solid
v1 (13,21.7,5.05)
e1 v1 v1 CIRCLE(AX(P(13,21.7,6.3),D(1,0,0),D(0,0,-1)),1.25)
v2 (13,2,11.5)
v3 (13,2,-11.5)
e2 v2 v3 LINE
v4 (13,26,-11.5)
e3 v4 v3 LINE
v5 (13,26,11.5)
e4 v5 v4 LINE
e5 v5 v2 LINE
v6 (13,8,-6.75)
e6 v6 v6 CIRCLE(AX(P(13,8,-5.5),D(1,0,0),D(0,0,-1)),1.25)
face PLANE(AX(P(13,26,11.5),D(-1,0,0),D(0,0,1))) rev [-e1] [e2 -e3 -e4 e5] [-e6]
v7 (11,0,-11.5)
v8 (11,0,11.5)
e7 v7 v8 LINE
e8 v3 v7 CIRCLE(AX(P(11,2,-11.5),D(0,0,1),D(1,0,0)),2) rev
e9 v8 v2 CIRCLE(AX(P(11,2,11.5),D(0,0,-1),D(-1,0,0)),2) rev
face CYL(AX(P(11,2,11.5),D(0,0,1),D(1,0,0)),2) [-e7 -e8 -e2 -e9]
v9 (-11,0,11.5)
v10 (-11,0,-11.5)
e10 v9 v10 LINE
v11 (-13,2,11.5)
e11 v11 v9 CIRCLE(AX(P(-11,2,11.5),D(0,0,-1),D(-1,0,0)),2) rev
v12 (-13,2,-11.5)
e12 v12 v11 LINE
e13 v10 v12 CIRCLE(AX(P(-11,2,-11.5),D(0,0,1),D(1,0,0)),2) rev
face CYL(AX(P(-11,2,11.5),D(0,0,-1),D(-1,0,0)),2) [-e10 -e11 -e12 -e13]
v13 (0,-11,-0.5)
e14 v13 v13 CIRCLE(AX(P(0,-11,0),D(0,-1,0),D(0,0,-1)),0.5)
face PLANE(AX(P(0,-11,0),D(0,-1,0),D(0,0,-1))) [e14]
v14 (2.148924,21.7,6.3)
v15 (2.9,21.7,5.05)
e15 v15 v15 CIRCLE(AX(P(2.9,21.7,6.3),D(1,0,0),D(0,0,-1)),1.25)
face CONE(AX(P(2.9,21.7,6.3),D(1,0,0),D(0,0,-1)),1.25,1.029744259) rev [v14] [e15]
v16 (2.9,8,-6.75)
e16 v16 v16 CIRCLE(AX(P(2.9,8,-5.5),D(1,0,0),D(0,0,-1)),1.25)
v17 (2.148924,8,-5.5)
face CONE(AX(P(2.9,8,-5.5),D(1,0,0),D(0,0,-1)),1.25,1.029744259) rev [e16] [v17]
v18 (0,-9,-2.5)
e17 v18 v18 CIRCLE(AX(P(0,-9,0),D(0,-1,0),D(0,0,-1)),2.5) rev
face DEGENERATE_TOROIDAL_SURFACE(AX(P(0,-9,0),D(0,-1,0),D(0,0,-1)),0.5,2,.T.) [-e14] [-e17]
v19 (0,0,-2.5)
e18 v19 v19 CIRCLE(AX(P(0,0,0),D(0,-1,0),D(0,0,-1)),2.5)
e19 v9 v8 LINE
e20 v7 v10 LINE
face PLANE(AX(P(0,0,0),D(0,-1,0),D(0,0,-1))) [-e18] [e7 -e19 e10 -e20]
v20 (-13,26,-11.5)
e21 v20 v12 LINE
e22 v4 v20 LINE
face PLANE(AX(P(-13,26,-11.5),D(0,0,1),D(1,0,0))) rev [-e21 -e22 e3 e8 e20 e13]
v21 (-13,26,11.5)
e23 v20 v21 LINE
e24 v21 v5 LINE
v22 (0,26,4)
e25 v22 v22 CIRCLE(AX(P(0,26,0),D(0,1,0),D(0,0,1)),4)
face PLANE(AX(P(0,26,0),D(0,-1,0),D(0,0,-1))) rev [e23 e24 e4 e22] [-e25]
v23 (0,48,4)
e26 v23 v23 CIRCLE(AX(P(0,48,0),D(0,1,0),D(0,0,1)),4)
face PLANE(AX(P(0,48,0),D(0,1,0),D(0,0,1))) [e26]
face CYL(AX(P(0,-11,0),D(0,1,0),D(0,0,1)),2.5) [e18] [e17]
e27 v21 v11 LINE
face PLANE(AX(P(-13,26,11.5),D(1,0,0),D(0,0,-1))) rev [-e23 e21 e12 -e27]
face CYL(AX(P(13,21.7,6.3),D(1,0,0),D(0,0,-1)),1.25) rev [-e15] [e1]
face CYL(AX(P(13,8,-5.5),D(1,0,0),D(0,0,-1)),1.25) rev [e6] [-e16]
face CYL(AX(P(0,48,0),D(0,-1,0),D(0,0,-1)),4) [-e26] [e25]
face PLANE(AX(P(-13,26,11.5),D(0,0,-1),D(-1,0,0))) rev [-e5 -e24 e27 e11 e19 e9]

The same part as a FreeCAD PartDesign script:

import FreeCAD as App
import Part
import Sketcher
Q = App.Units.Quantity


def edges_at(feature, points):
    """Names of the edges that pass closest to the given points."""
    edges = feature.Shape.Edges
    near = lambda p: min(range(len(edges)), key=lambda i: edges[i].distToShape(Part.Vertex(*p))[0])
    return sorted({f"Edge{near(p) + 1}" for p in points})

doc = App.newDocument("Part")
params = doc.addObject("Spreadsheet::Sheet", "Params")
for row, (alias, value) in enumerate([
    ("sketch1_width", "26 mm"),
    ("sketch1_height", "23 mm"),
    ("pad1_length", "26 mm"),
    ("sketch2_diameter", "2.5 mm"),
    ("hole_diameter", "2.5 mm"),
    ("hole_depth", "10.1 mm"),
    ("fillet_radius", "2 mm"),
    ("sketch3_diameter", "8 mm"),
    ("pad2_length", "22 mm"),
    ("sketch4_diameter", "5 mm"),
    ("pad3_length", "11 mm"),
    ("fillet2_radius", "2 mm"),
], start=1):
    params.set(f"A{row}", alias)
    params.set(f"B{row}", "=" + value)
    params.setAlias(f"B{row}", alias)

body = doc.addObject("PartDesign::Body", "Body")

# Sketch on XZ plane
sketch1 = body.newObject("Sketcher::SketchObject", "Sketch")
sketch1.AttachmentSupport = (doc.getObject("XZ_Plane"), [""])
sketch1.MapMode = "FlatFace"
sketch1.addGeometry([
    Part.LineSegment(App.Vector(-13, -12, 0), App.Vector(-13, 12, 0)),
    Part.LineSegment(App.Vector(-13, 12, 0), App.Vector(13, 12, 0)),
    Part.LineSegment(App.Vector(13, 12, 0), App.Vector(13, -12, 0)),
    Part.LineSegment(App.Vector(13, -12, 0), App.Vector(-13, -12, 0)),
], False)
sketch1.addConstraint([
    Sketcher.Constraint("Coincident", 0, 2, 1, 1),
    Sketcher.Constraint("Coincident", 1, 2, 2, 1),
    Sketcher.Constraint("Coincident", 2, 2, 3, 1),
    Sketcher.Constraint("Coincident", 3, 2, 0, 1),
    Sketcher.Constraint("Vertical", 0),
    Sketcher.Constraint("Horizontal", 1),
    Sketcher.Constraint("Vertical", 2),
    Sketcher.Constraint("Horizontal", 3),
    Sketcher.Constraint("Symmetric", 0, 2, 2, 2, -1, 1),
    Sketcher.Constraint("DistanceX", 1, 1, 1, 2, Q("26 mm")),
    Sketcher.Constraint("DistanceY", 0, 1, 0, 2, Q("23 mm")),
])
sketch1.setExpression("Constraints[9]", "Params.sketch1_width")
sketch1.setExpression("Constraints[10]", "Params.sketch1_height")
pad1 = body.newObject("PartDesign::Pad", "Pad")
pad1.Profile = sketch1
pad1.setExpression("Length", "Params.pad1_length")
pad1.Reversed = True

# Sketch on YZ plane
sketch2 = body.newObject("Sketcher::SketchObject", "Sketch001")
sketch2.AttachmentSupport = (doc.getObject("YZ_Plane"), [""])
sketch2.MapMode = "FlatFace"
sketch2.AttachmentOffset = App.Placement(App.Vector(0, 0, 13), App.Rotation())
sketch2.addGeometry([
    Part.Circle(App.Vector(21.7, 6.3, 0), App.Vector(0, 0, 1), 1.2),
    Part.Circle(App.Vector(8, -5.5, 0), App.Vector(0, 0, 1), 1.2),
], False)
sketch2.addConstraint([
    Sketcher.Constraint("Equal", 0, 1),
    Sketcher.Constraint("Diameter", 0, Q("2.5 mm")),
    Sketcher.Constraint("DistanceX", -1, 1, 1, 3, Q("8 mm")),
    Sketcher.Constraint("DistanceX", -1, 1, 0, 3, Q("21.7 mm")),
    Sketcher.Constraint("DistanceY", -1, 1, 0, 3, Q("6.3 mm")),
    Sketcher.Constraint("DistanceY", 1, 3, -1, 1, Q("5.5 mm")),
])
sketch2.setExpression("Constraints[1]", "Params.sketch2_diameter")
doc.recompute()
hole = body.newObject("PartDesign::Hole", "Hole")
hole.Profile = sketch2
hole.ThreadType = "None"
hole.setExpression("Diameter", "Params.hole_diameter")
hole.DepthType = "Dimension"
hole.setExpression("Depth", "Params.hole_depth")
hole.DrillPoint = "Angled"
hole.DrillPointAngle = 118
doc.recompute()

fillet = body.newObject("PartDesign::Fillet", "Fillet")
fillet.Base = (hole, edges_at(hole, [(-13, 0, 0), (13, 0, 0)]))
fillet.setExpression("Radius", "Params.fillet_radius")

# Sketch on XZ plane
sketch3 = body.newObject("Sketcher::SketchObject", "Sketch002")
sketch3.AttachmentSupport = (doc.getObject("XZ_Plane"), [""])
sketch3.MapMode = "FlatFace"
sketch3.AttachmentOffset = App.Placement(App.Vector(0, 0, -26), App.Rotation())
sketch3.addGeometry(Part.Circle(App.Vector(0, 0, 0), App.Vector(0, 0, 1), 4), False)
sketch3.addConstraint([
    Sketcher.Constraint("Coincident", 0, 3, -1, 1),
    Sketcher.Constraint("Diameter", 0, Q("8 mm")),
])
sketch3.setExpression("Constraints[1]", "Params.sketch3_diameter")
pad2 = body.newObject("PartDesign::Pad", "Pad001")
pad2.Profile = sketch3
pad2.setExpression("Length", "Params.pad2_length")
pad2.Reversed = True

# Sketch on XZ plane
sketch4 = body.newObject("Sketcher::SketchObject", "Sketch003")
sketch4.AttachmentSupport = (doc.getObject("XZ_Plane"), [""])
sketch4.MapMode = "FlatFace"
sketch4.addGeometry(Part.Circle(App.Vector(0, 0, 0), App.Vector(0, 0, 1), 2.5), False)
sketch4.addConstraint([
    Sketcher.Constraint("Coincident", 0, 3, -1, 1),
    Sketcher.Constraint("Diameter", 0, Q("5 mm")),
])
sketch4.setExpression("Constraints[1]", "Params.sketch4_diameter")
pad3 = body.newObject("PartDesign::Pad", "Pad002")
pad3.Profile = sketch4
pad3.setExpression("Length", "Params.pad3_length")
doc.recompute()

fillet2 = body.newObject("PartDesign::Fillet", "Fillet001")
fillet2.Base = (pad3, edges_at(pad3, [(0, -11, 2.5)]))
fillet2.setExpression("Radius", "Params.fillet2_radius")

doc.recompute()
